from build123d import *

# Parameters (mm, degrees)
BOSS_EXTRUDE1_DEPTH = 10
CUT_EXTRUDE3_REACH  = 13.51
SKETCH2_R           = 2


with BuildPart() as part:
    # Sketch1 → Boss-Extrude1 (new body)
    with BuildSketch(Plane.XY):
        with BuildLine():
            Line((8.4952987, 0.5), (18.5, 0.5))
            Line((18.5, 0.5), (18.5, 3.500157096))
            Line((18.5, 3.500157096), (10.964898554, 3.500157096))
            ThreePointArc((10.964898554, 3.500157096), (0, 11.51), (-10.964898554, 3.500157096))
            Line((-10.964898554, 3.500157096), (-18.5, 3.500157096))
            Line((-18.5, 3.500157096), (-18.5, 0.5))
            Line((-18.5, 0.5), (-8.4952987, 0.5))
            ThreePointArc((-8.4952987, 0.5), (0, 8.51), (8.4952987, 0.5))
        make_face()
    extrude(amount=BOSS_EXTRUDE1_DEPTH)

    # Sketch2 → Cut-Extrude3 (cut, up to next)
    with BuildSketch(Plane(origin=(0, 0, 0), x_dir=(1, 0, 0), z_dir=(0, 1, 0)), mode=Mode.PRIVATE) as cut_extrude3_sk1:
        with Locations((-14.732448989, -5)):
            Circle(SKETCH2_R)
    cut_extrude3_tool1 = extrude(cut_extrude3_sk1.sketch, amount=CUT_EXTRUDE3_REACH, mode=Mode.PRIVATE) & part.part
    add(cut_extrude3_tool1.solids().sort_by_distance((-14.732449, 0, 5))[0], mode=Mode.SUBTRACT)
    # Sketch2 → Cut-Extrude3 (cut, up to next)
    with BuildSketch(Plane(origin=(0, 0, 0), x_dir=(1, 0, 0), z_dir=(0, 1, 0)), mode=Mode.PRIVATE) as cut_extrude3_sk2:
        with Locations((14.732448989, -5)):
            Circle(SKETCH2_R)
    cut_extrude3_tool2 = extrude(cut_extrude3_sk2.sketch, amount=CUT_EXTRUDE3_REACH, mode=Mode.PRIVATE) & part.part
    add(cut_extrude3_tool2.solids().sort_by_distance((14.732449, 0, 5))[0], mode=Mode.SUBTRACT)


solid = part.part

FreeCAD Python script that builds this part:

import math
import FreeCAD as App
import Part
import Sketcher

V = App.Vector
Q = App.Units.Quantity

doc = App.newDocument("Part")
body = doc.addObject("PartDesign::Body", "Body")

# Sketch on XY plane
sketch1 = body.newObject("Sketcher::SketchObject", "Sketch")
sketch1.AttachmentSupport = (doc.getObject("XY_Plane"), [""])
sketch1.MapMode = "FlatFace"
sketch1.addGeometry([
    Part.LineSegment(V(8.5, 0.5, 0), V(18.5, 0.5, 0)),  # 0
    Part.LineSegment(V(18.5, 0.5, 0), V(18.5, 3.5, 0)),  # 1
    Part.LineSegment(V(18.5, 3.5, 0), V(11, 3.5, 0)),  # 2
    Part.ArcOfCircle(Part.Circle(V(0, 0, 0), V(0, 0, 1), 11.5), math.radians(18), math.radians(162)),  # 3
    Part.LineSegment(V(-11, 3.5, 0), V(-18.5, 3.5, 0)),  # 4
    Part.LineSegment(V(-18.5, 3.5, 0), V(-18.5, 0.5, 0)),  # 5
    Part.LineSegment(V(-18.5, 0.5, 0), V(-8.5, 0.5, 0)),  # 6
    Part.ArcOfCircle(Part.Circle(V(0, 0, 0), V(0, 0, 1), 8.5), math.radians(3), math.radians(177)),  # 7
], False)
sketch1.addConstraint([
    Sketcher.Constraint("Coincident", 0, 2, 1, 1),
    Sketcher.Constraint("Coincident", 1, 2, 2, 1),
    Sketcher.Constraint("Coincident", 2, 2, 3, 1),
    Sketcher.Constraint("Coincident", 3, 2, 4, 1),
    Sketcher.Constraint("Coincident", 4, 2, 5, 1),
    Sketcher.Constraint("Coincident", 5, 2, 6, 1),
    Sketcher.Constraint("Coincident", 6, 2, 7, 2),
    Sketcher.Constraint("Coincident", 7, 1, 0, 1),
    Sketcher.Constraint("Horizontal", 0),
    Sketcher.Constraint("Vertical", 1),
    Sketcher.Constraint("Horizontal", 2),
    Sketcher.Constraint("Horizontal", 4),
    Sketcher.Constraint("Vertical", 5),
    Sketcher.Constraint("Horizontal", 6),
    Sketcher.Constraint("Coincident", 3, 3, -1, 1),
    Sketcher.Constraint("Coincident", 7, 3, -1, 1),
    Sketcher.Constraint("Symmetric", 1, 2, 4, 2, -2),
    Sketcher.Constraint("Horizontal", 0, 2, 5, 2),
    Sketcher.Constraint("Radius", 3, Q("11.51 mm")),
    Sketcher.Constraint("Radius", 7, Q("8.51 mm")),
    Sketcher.Constraint("DistanceX", 4, 2, 1, 2, Q("37 mm")),
    Sketcher.Constraint("DistanceY", -1, 1, 0, 2, Q("0.5 mm")),
    Sketcher.Constraint("DistanceX", 2, 2, 2, 1, Q("7.535101 mm")),
])
pad1 = body.newObject("PartDesign::Pad", "Pad")
pad1.Profile = sketch1
pad1.Length = 10

# Sketch on XZ plane
sketch2 = body.newObject("Sketcher::SketchObject", "Sketch001")
sketch2.AttachmentSupport = (doc.getObject("XZ_Plane"), [""])
sketch2.MapMode = "FlatFace"
sketch2.addGeometry(Part.Circle(V(-14.7, 5, 0), V(0, 0, 1), 2), False)
sketch2.addConstraint([
    Sketcher.Constraint("Diameter", 0, Q("4 mm")),
    Sketcher.Constraint("DistanceY", -1, 1, 0, 3, Q("5 mm")),
    Sketcher.Constraint("DistanceX", 0, 3, -1, 1, Q("14.732449 mm")),
])
pocket1 = body.newObject("PartDesign::Pocket", "Pocket")
pocket1.Profile = sketch2
pocket1.Length = 3.500157

# Sketch on XZ plane
sketch3 = body.newObject("Sketcher::SketchObject", "Sketch002")
sketch3.AttachmentSupport = (doc.getObject("XZ_Plane"), [""])
sketch3.MapMode = "FlatFace"
sketch3.addGeometry(Part.Circle(V(14.7, 5, 0), V(0, 0, 1), 2), False)
sketch3.addConstraint([
    Sketcher.Constraint("Diameter", 0, Q("4 mm")),
    Sketcher.Constraint("DistanceY", -1, 1, 0, 3, Q("5 mm")),
    Sketcher.Constraint("DistanceX", -1, 1, 0, 3, Q("14.732449 mm")),
])
pocket2 = body.newObject("PartDesign::Pocket", "Pocket001")
pocket2.Profile = sketch3
pocket2.Length = 3.500157

doc.recompute()
